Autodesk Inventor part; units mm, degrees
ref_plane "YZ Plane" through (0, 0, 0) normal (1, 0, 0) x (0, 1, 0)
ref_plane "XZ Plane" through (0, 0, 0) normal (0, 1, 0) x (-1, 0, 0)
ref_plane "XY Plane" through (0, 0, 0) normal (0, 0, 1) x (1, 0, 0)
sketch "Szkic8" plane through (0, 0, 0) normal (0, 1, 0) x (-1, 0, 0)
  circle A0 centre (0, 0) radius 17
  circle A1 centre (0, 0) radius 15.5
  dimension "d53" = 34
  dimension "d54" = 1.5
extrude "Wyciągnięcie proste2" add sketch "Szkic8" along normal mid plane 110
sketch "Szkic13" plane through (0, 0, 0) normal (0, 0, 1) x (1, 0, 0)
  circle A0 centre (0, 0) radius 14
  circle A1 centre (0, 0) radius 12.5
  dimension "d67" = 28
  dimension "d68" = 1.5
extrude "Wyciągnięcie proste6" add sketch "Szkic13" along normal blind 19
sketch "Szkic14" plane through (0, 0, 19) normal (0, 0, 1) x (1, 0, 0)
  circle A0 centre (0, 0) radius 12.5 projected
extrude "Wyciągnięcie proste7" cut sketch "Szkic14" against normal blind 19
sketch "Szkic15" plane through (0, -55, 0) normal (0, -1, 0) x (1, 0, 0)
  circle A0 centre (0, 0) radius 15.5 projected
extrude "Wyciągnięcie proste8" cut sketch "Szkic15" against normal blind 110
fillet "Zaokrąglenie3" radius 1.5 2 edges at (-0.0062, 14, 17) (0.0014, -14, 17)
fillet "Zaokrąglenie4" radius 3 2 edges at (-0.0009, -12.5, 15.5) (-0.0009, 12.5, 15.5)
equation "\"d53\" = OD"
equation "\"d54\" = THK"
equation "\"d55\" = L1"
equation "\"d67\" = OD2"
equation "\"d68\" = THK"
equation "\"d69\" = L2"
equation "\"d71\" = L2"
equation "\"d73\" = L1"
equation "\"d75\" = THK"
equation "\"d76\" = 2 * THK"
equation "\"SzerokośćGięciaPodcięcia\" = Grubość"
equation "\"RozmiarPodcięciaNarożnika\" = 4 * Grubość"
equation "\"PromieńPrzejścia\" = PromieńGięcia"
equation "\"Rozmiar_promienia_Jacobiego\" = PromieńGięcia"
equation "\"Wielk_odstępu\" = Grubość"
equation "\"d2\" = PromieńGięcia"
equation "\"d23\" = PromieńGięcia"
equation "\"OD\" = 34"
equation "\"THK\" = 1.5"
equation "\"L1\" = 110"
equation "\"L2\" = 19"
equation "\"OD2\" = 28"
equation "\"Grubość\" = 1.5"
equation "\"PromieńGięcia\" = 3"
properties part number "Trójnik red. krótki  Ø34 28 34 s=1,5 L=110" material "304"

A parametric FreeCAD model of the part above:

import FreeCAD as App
import Part
import Sketcher

V = App.Vector


def edges_at(feature, points):
    """Names of the edges that pass closest to the given points."""
    edges = feature.Shape.Edges
    near = lambda p: min(range(len(edges)), key=lambda i: edges[i].distToShape(Part.Vertex(*p))[0])
    return sorted({f"Edge{near(p) + 1}" for p in points})

doc = App.newDocument("Part")
body = doc.addObject("PartDesign::Body", "Body")

# Sketch on XZ plane
sketch1 = body.newObject("Sketcher::SketchObject", "Sketch")
sketch1.AttachmentSupport = (doc.getObject("XZ_Plane"), [""])
sketch1.MapMode = "FlatFace"
sketch1.addGeometry([
    Part.Circle(V(0, 0, 0), V(0, 0, 1), 17),
    Part.Circle(V(0, 0, 0), V(0, 0, 1), 16),
], False)
sketch1.addConstraint([
    Sketcher.Constraint("Coincident", 0, 3, -1, 1),
    Sketcher.Constraint("Coincident", 1, 3, -1, 1),
    Sketcher.Constraint("Diameter", 0, 34.0),
    Sketcher.Constraint("Diameter", 1, 31.0),
])
pad1 = body.newObject("PartDesign::Pad", "Pad")
pad1.Profile = sketch1
pad1.Length = 110
pad1.Midplane = True

# Sketch on XY plane
sketch2 = body.newObject("Sketcher::SketchObject", "Sketch001")
sketch2.AttachmentSupport = (doc.getObject("XY_Plane"), [""])
sketch2.MapMode = "FlatFace"
sketch2.addGeometry([
    Part.Circle(V(0, 0, 0), V(0, 0, 1), 14),
    Part.Circle(V(0, 0, 0), V(0, 0, 1), 12),
], False)
sketch2.addConstraint([
    Sketcher.Constraint("Coincident", 0, 3, -1, 1),
    Sketcher.Constraint("Coincident", 1, 3, -1, 1),
    Sketcher.Constraint("Diameter", 0, 28.0),
    Sketcher.Constraint("Diameter", 1, 25.0),
])
pad2 = body.newObject("PartDesign::Pad", "Pad001")
pad2.Profile = sketch2
pad2.Length = 19

# Sketch on XY plane
sketch3 = body.newObject("Sketcher::SketchObject", "Sketch002")
sketch3.AttachmentSupport = (doc.getObject("XY_Plane"), [""])
sketch3.MapMode = "FlatFace"
sketch3.AttachmentOffset = App.Placement(V(0, 0, 19), App.Rotation())
sketch3.addGeometry(Part.Circle(V(0, 0, 0), V(0, 0, 1), 12), False)
sketch3.addConstraint([
    Sketcher.Constraint("Coincident", 0, 3, -1, 1),
    Sketcher.Constraint("Diameter", 0, 25.0),
])
pocket1 = body.newObject("PartDesign::Pocket", "Pocket")
pocket1.Profile = sketch3
pocket1.Length = 19

# Sketch on XZ plane
sketch4 = body.newObject("Sketcher::SketchObject", "Sketch003")
sketch4.AttachmentSupport = (doc.getObject("XZ_Plane"), [""])
sketch4.MapMode = "FlatFace"
sketch4.AttachmentOffset = App.Placement(V(0, 0, 55), App.Rotation())
sketch4.addGeometry(Part.Circle(V(0, 0, 0), V(0, 0, 1), 16), False)
sketch4.addConstraint([
    Sketcher.Constraint("Coincident", 0, 3, -1, 1),
    Sketcher.Constraint("Diameter", 0, 31.0),
])
pocket2 = body.newObject("PartDesign::Pocket", "Pocket001")
pocket2.Profile = sketch4
pocket2.Length = 110
doc.recompute()

fillet = body.newObject("PartDesign::Fillet", "Fillet")
fillet.Base = (pocket2, edges_at(pocket2, [(-0.006, 14, 17), (0.001, -14, 17)]))
fillet.Radius = 1.5
doc.recompute()

fillet2 = body.newObject("PartDesign::Fillet", "Fillet001")
fillet2.Base = (fillet, edges_at(fillet, [(-0.001, -12.5, 15.5), (-0.001, 12.5, 15.5)]))
fillet2.Radius = 3

doc.recompute()
